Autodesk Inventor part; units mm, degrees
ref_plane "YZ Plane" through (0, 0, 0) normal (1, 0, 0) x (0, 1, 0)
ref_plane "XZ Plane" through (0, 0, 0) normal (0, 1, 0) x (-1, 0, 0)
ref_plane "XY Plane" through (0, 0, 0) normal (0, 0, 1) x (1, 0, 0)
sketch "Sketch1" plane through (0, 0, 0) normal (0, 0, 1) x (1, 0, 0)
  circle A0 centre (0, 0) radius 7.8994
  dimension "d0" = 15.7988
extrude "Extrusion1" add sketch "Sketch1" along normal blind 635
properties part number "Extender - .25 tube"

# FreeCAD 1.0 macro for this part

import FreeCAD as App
import Part
import Sketcher
Q = App.Units.Quantity

doc = App.newDocument("Part")
body = doc.addObject("PartDesign::Body", "Body")

# Sketch on XY plane
sketch1 = body.newObject("Sketcher::SketchObject", "Sketch")
sketch1.AttachmentSupport = (doc.getObject("XY_Plane"), [""])
sketch1.MapMode = "FlatFace"
sketch1.addGeometry(Part.Circle(App.Vector(0, 0, 0), App.Vector(0, 0, 1), 7.8994), False)
sketch1.addConstraint([
    Sketcher.Constraint("Coincident", 0, 3, -1, 1),
    Sketcher.Constraint("Diameter", 0, Q("0.622 in")),
])
pad1 = body.newObject("PartDesign::Pad", "Pad")
pad1.Profile = sketch1
pad1.Length = Q("25 in")

doc.recompute()
